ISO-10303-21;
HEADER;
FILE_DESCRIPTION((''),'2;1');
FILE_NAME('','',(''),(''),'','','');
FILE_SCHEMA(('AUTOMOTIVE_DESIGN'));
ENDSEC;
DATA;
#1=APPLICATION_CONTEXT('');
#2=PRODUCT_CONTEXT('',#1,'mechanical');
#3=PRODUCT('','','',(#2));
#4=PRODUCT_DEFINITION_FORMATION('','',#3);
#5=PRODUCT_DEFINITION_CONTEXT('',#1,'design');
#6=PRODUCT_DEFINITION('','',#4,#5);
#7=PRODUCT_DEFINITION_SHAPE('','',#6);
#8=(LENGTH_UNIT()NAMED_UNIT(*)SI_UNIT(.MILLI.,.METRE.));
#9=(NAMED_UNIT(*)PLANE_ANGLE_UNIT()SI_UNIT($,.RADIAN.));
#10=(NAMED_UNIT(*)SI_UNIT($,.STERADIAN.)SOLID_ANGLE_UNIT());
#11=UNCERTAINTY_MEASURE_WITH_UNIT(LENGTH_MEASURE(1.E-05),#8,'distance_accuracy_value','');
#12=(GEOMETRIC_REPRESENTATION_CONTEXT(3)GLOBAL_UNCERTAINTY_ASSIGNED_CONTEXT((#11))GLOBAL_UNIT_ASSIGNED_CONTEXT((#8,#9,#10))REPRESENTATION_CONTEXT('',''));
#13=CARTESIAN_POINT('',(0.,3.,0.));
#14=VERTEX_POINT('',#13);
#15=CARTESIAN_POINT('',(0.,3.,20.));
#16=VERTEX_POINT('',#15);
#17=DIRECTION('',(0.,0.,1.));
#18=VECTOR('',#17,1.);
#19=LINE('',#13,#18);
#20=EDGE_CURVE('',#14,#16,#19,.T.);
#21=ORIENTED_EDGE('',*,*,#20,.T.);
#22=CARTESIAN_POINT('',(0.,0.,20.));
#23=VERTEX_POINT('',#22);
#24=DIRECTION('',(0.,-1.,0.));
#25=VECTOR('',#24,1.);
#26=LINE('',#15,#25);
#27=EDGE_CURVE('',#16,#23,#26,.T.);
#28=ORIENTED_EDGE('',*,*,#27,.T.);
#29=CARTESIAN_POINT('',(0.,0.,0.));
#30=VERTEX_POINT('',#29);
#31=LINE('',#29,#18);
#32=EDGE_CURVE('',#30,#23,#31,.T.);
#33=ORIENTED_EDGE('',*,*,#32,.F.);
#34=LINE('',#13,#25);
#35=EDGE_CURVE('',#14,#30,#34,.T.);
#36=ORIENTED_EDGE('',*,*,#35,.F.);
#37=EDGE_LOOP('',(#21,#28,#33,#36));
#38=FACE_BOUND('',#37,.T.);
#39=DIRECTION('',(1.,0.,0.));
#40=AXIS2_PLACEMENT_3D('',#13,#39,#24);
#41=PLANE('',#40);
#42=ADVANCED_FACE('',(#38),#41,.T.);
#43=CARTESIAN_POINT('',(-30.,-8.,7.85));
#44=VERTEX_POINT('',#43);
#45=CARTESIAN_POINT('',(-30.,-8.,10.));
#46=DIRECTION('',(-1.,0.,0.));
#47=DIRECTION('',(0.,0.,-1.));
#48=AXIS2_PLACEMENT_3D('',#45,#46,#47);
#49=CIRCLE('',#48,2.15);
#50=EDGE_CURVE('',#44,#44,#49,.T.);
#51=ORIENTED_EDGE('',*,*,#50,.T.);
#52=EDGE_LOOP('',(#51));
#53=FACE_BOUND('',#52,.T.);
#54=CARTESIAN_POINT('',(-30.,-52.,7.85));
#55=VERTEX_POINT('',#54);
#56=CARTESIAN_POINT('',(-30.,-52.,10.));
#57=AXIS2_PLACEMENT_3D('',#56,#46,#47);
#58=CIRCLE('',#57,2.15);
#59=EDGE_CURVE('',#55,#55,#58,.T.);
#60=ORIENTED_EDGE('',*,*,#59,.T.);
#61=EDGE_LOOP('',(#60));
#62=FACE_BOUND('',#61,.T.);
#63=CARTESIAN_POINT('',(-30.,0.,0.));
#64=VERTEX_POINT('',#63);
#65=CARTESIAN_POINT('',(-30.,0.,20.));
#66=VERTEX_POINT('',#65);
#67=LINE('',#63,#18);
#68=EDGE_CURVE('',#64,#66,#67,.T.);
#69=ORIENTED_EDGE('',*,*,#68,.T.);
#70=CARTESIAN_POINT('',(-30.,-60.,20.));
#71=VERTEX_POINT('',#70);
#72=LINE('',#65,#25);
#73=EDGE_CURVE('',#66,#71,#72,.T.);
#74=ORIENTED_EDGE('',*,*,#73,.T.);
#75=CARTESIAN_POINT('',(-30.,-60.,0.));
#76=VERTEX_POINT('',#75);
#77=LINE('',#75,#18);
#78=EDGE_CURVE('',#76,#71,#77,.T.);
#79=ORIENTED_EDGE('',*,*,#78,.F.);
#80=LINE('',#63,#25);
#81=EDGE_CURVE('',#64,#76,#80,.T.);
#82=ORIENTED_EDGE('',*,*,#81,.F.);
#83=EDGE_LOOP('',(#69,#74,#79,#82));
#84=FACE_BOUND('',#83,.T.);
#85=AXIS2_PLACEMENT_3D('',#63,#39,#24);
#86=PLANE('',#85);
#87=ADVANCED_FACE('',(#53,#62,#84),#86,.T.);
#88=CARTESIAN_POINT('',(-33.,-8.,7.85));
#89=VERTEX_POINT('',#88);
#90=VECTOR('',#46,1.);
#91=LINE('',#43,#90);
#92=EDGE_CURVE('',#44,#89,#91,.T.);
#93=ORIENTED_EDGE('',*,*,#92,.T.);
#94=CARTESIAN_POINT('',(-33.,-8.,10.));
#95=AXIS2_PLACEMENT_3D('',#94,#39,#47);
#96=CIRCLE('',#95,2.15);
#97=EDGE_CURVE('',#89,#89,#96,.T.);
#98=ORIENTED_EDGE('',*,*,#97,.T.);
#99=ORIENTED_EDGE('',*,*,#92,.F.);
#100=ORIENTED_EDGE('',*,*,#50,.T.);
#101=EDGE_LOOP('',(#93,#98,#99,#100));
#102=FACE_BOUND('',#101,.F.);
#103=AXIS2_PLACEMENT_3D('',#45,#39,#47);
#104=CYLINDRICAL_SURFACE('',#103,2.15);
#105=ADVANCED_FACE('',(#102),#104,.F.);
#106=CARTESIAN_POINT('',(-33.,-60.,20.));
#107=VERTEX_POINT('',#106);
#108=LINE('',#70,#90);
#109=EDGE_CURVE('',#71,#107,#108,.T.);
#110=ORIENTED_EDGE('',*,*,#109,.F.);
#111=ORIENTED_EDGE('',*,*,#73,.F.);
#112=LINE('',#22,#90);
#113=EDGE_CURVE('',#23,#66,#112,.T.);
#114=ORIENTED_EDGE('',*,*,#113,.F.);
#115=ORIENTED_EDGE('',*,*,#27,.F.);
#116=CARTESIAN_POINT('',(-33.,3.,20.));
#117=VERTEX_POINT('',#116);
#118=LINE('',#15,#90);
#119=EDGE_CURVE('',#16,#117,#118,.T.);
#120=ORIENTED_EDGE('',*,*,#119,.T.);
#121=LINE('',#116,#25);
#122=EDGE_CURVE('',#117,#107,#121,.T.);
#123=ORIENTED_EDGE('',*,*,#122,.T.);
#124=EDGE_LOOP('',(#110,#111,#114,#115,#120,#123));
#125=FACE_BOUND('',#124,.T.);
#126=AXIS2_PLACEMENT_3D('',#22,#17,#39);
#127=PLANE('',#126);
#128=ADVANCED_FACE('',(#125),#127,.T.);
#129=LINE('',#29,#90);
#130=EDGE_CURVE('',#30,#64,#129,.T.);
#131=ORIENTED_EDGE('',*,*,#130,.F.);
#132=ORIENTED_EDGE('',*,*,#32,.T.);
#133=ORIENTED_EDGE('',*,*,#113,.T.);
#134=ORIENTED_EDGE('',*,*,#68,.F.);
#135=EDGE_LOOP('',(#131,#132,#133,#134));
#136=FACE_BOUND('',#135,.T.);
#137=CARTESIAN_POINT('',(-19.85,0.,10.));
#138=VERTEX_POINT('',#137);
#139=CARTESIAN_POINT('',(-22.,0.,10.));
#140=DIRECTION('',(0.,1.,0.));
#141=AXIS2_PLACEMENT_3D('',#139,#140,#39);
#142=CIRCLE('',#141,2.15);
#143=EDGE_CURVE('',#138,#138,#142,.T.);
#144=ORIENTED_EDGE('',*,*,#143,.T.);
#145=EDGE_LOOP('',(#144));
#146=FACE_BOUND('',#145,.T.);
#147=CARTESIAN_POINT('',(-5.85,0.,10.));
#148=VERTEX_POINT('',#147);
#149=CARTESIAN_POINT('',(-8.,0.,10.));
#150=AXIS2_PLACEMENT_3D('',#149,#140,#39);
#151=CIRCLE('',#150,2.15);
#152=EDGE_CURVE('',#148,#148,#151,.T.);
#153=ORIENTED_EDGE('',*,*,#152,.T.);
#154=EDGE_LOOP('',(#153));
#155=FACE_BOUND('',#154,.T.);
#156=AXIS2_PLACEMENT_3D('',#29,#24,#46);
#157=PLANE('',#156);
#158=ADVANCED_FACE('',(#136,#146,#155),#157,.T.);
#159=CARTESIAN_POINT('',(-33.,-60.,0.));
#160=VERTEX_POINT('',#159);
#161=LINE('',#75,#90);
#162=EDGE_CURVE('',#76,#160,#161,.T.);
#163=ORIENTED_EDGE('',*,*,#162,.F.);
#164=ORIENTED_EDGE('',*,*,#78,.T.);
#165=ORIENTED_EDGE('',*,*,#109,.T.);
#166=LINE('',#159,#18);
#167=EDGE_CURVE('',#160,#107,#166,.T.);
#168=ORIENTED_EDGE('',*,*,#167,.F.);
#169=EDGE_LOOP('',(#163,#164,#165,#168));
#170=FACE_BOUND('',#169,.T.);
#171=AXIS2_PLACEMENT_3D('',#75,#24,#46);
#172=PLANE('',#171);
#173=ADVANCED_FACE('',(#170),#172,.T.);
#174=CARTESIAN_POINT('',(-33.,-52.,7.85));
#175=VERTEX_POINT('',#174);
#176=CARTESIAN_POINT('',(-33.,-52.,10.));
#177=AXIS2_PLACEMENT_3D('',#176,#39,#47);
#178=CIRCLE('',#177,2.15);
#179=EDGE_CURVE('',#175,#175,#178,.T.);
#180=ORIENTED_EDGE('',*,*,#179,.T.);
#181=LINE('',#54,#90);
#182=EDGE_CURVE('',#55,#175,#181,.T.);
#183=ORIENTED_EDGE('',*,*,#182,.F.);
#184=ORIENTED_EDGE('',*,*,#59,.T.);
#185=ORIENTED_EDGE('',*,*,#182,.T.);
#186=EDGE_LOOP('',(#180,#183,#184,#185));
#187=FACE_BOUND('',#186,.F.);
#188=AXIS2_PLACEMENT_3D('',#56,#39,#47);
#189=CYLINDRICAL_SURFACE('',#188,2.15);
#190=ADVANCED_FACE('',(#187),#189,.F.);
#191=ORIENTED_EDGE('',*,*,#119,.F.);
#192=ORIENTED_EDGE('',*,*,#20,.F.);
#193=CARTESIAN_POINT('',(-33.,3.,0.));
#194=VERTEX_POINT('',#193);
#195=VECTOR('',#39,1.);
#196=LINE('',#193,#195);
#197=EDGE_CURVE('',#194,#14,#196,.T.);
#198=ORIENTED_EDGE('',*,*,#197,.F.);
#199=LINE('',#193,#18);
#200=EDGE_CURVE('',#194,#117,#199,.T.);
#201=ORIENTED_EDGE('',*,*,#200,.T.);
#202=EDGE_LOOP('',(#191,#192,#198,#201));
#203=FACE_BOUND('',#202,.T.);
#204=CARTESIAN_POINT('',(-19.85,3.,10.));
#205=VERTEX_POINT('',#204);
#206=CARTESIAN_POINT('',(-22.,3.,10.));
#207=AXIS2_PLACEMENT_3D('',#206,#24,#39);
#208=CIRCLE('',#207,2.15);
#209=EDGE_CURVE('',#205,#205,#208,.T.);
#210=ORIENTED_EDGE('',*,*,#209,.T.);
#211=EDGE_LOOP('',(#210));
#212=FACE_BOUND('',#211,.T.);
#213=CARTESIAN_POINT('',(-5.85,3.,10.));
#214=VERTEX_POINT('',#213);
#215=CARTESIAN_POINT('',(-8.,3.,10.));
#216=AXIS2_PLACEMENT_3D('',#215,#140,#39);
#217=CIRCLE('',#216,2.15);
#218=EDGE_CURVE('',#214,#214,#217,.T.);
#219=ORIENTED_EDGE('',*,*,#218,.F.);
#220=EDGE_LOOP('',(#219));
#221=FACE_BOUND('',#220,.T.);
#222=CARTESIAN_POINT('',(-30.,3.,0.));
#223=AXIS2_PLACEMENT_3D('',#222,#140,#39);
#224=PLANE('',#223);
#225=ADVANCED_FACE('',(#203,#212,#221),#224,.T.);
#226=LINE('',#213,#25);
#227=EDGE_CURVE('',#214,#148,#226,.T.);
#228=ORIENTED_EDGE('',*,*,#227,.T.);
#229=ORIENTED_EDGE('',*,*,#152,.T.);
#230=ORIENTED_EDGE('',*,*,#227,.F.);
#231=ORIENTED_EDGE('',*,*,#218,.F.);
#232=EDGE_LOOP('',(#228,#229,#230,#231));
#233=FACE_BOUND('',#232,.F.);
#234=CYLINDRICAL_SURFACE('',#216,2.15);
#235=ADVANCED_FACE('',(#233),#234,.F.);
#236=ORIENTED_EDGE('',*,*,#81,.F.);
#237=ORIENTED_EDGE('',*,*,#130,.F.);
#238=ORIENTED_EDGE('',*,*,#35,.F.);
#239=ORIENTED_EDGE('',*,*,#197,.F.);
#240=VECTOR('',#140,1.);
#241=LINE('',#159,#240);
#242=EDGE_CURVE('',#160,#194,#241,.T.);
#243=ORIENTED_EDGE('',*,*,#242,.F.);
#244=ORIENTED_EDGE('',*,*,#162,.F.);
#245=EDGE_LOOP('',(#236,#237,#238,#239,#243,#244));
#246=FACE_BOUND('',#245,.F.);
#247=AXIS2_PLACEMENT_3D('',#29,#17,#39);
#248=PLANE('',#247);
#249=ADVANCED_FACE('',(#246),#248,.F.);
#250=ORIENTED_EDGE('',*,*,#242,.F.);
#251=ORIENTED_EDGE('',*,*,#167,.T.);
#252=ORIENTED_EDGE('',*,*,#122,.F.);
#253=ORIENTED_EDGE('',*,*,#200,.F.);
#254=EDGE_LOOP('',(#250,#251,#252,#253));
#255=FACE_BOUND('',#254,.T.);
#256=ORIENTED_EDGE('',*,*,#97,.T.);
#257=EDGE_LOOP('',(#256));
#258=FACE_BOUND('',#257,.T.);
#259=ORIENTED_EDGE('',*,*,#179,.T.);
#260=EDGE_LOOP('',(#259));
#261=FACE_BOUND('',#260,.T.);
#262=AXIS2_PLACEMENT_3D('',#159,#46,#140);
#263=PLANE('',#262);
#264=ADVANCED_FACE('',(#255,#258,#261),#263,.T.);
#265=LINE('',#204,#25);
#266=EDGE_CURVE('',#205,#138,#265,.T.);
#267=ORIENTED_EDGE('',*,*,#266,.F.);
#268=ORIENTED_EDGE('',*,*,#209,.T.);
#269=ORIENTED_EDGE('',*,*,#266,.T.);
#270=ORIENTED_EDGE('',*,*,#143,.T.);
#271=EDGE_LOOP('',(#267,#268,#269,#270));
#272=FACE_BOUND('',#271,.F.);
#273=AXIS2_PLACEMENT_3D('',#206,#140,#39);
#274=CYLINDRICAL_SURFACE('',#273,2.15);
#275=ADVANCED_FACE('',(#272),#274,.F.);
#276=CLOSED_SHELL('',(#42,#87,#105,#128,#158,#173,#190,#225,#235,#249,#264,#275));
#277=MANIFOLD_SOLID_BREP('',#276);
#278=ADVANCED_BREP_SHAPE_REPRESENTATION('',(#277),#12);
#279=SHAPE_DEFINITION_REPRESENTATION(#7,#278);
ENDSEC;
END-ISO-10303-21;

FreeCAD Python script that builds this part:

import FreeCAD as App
import Part
import Sketcher

V = App.Vector

doc = App.newDocument("Part")
params = doc.addObject("Spreadsheet::Sheet", "Params")
for row, (alias, value) in enumerate([
    ("sketch1_width", "30 mm"),
    ("sketch1_width2", "3 mm"),
    ("sketch1_height", "60 mm"),
    ("pad1_length", "20 mm"),
    ("sketch2_diameter", "4.3 mm"),
    ("sketch3_diameter", "4.3 mm"),
], start=1):
    params.set(f"A{row}", alias)
    params.set(f"B{row}", "=" + value)
    params.setAlias(f"B{row}", alias)

body = doc.addObject("PartDesign::Body", "Body")

# Sketch on XY plane
sketch1 = doc.addObject("Sketcher::SketchObject", "Sketch")
body.addObject(sketch1)
sketch1.AttachmentSupport = (doc.XY_Plane, [""])
sketch1.MapMode = "FlatFace"
sketch1.addGeometry(Part.LineSegment(V(-30, 0, 0), V(0, 0, 0)), False)
sketch1.addGeometry(Part.LineSegment(V(0, 0, 0), V(0, 3, 0)), False)
sketch1.addGeometry(Part.LineSegment(V(0, 3, 0), V(-33, 3, 0)), False)
sketch1.addGeometry(Part.LineSegment(V(-33, 3, 0), V(-33, -60, 0)), False)
sketch1.addGeometry(Part.LineSegment(V(-33, -60, 0), V(-30, -60, 0)), False)
sketch1.addGeometry(Part.LineSegment(V(-30, -60, 0), V(-30, 0, 0)), False)
sketch1.addConstraint(Sketcher.Constraint("Coincident", 0, 2, 1, 1))
sketch1.addConstraint(Sketcher.Constraint("Coincident", 1, 2, 2, 1))
sketch1.addConstraint(Sketcher.Constraint("Coincident", 2, 2, 3, 1))
sketch1.addConstraint(Sketcher.Constraint("Coincident", 3, 2, 4, 1))
sketch1.addConstraint(Sketcher.Constraint("Coincident", 4, 2, 5, 1))
sketch1.addConstraint(Sketcher.Constraint("Coincident", 5, 2, 0, 1))
sketch1.addConstraint(Sketcher.Constraint("Horizontal", 0))
sketch1.addConstraint(Sketcher.Constraint("Vertical", 1))
sketch1.addConstraint(Sketcher.Constraint("Horizontal", 2))
sketch1.addConstraint(Sketcher.Constraint("Vertical", 3))
sketch1.addConstraint(Sketcher.Constraint("Horizontal", 4))
sketch1.addConstraint(Sketcher.Constraint("Vertical", 5))
sketch1.addConstraint(Sketcher.Constraint("Coincident", 0, 2, -1, 1))
sketch1.addConstraint(Sketcher.Constraint("Equal", 4, 1))
sketch1.addConstraint(Sketcher.Constraint("DistanceX", 0, 1, 0, 2, 30.0))
sketch1.addConstraint(Sketcher.Constraint("DistanceX", 4, 1, 4, 2, 3.0))
sketch1.addConstraint(Sketcher.Constraint("DistanceY", 5, 1, 5, 2, 60.0))
sketch1.setExpression("Constraints[14]", "Params.sketch1_width")
sketch1.setExpression("Constraints[15]", "Params.sketch1_width2")
sketch1.setExpression("Constraints[16]", "Params.sketch1_height")
pad1 = doc.addObject("PartDesign::Pad", "Pad")
body.addObject(pad1)
pad1.Profile = sketch1
pad1.setExpression("Length", "Params.pad1_length")

# Sketch on YZ plane
sketch2 = doc.addObject("Sketcher::SketchObject", "Sketch001")
body.addObject(sketch2)
sketch2.AttachmentSupport = (doc.YZ_Plane, [""])
sketch2.MapMode = "FlatFace"
sketch2.AttachmentOffset = App.Placement(V(0, 0, -30), App.Rotation())
sketch2.addGeometry(Part.Circle(V(-8, 10, 0), V(0, 0, 1), 2.1), False)
sketch2.addGeometry(Part.Circle(V(-52, 10, 0), V(0, 0, 1), 2.1), False)
sketch2.addConstraint(Sketcher.Constraint("Equal", 0, 1))
sketch2.addConstraint(Sketcher.Constraint("Horizontal", 0, 3, 1, 3))
sketch2.addConstraint(Sketcher.Constraint("Diameter", 0, 4.3))
sketch2.addConstraint(Sketcher.Constraint("DistanceX", 0, 3, -1, 1, 8.0))
sketch2.addConstraint(Sketcher.Constraint("DistanceY", -1, 1, 0, 3, 10.0))
sketch2.addConstraint(Sketcher.Constraint("DistanceX", 1, 3, -1, 1, 52.0))
sketch2.setExpression("Constraints[2]", "Params.sketch2_diameter")
pocket1 = doc.addObject("PartDesign::Pocket", "Pocket")
body.addObject(pocket1)
pocket1.Profile = sketch2
pocket1.Type = "ThroughAll"

# Sketch on XZ plane
sketch3 = doc.addObject("Sketcher::SketchObject", "Sketch002")
body.addObject(sketch3)
sketch3.AttachmentSupport = (doc.XZ_Plane, [""])
sketch3.MapMode = "FlatFace"
sketch3.AttachmentOffset = App.Placement(V(0, 0, -3), App.Rotation())
sketch3.addGeometry(Part.Circle(V(-8, 10, 0), V(0, 0, 1), 2.1), False)
sketch3.addGeometry(Part.Circle(V(-22, 10, 0), V(0, 0, 1), 2.1), False)
sketch3.addConstraint(Sketcher.Constraint("Equal", 0, 1))
sketch3.addConstraint(Sketcher.Constraint("Horizontal", 0, 3, 1, 3))
sketch3.addConstraint(Sketcher.Constraint("Diameter", 0, 4.3))
sketch3.addConstraint(Sketcher.Constraint("DistanceX", 0, 3, -1, 1, 8.0))
sketch3.addConstraint(Sketcher.Constraint("DistanceY", -1, 1, 0, 3, 10.0))
sketch3.addConstraint(Sketcher.Constraint("DistanceX", 1, 3, -1, 1, 22.0))
sketch3.setExpression("Constraints[2]", "Params.sketch3_diameter")
pocket2 = doc.addObject("PartDesign::Pocket", "Pocket001")
body.addObject(pocket2)
pocket2.Profile = sketch3
pocket2.Type = "ThroughAll"
pocket2.Reversed = True

doc.recompute()
